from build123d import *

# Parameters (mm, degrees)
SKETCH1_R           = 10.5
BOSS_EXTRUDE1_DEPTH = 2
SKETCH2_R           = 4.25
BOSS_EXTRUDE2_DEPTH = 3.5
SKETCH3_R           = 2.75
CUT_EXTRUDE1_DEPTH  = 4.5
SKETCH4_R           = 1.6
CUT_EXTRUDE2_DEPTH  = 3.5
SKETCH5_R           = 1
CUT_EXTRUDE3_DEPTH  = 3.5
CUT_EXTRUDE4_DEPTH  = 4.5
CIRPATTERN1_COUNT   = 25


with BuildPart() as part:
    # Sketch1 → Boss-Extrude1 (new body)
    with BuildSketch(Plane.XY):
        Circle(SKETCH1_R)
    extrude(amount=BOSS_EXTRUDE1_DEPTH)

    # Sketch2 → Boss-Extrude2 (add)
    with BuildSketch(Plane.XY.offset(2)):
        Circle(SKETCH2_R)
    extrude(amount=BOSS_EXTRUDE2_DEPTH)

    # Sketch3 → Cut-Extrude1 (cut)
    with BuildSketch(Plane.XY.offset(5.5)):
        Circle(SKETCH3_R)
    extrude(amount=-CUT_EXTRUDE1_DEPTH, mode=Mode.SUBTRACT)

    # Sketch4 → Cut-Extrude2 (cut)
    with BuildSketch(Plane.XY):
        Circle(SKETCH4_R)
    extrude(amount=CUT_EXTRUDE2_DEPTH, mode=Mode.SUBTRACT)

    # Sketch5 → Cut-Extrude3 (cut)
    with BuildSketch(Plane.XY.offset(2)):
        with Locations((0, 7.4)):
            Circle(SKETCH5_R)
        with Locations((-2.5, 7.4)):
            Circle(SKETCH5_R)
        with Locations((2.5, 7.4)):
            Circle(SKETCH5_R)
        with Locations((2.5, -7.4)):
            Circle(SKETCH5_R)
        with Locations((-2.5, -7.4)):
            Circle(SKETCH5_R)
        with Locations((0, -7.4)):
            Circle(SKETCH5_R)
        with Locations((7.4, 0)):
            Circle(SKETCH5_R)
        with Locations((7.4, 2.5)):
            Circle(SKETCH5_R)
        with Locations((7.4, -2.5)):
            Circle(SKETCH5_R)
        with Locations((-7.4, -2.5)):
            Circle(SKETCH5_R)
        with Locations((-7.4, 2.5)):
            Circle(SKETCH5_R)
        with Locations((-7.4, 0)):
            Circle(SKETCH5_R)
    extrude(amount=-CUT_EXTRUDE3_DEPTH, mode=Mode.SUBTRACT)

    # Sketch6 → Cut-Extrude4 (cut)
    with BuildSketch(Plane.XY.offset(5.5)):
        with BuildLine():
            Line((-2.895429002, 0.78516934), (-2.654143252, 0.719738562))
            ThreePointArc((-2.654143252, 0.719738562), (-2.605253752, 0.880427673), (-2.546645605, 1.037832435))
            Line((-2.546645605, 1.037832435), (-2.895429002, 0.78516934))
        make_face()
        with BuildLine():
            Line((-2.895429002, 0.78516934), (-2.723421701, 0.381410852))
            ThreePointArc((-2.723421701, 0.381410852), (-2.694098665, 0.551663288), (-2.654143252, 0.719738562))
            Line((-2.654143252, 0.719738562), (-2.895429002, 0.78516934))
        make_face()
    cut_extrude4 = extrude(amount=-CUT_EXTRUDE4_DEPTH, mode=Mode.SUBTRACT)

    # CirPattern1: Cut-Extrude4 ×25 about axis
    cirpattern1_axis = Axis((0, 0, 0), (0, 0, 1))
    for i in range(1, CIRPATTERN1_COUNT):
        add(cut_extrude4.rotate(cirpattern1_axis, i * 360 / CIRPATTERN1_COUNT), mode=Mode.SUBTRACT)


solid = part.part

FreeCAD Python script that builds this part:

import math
import FreeCAD as App
import Part
import Sketcher
Q = App.Units.Quantity

doc = App.newDocument("Part")
body = doc.addObject("PartDesign::Body", "Body")

# Sketch on XY plane
sketch1 = body.newObject("Sketcher::SketchObject", "Sketch")
sketch1.AttachmentSupport = (doc.getObject("XY_Plane"), [""])
sketch1.MapMode = "FlatFace"
sketch1.addGeometry(Part.Circle(App.Vector(0, 0, 0), App.Vector(0, 0, 1), 10), False)
sketch1.addConstraint(Sketcher.Constraint("Coincident", 0, 3, -1, 1))
sketch1.addConstraint(Sketcher.Constraint("Diameter", 0, Q("21 mm")))
pad1 = body.newObject("PartDesign::Pad", "Pad")
pad1.Profile = sketch1
pad1.Length = 2

# Sketch on XY plane
sketch2 = body.newObject("Sketcher::SketchObject", "Sketch001")
sketch2.AttachmentSupport = (doc.getObject("XY_Plane"), [""])
sketch2.MapMode = "FlatFace"
sketch2.AttachmentOffset = App.Placement(App.Vector(0, 0, 2), App.Rotation())
sketch2.addGeometry(Part.Circle(App.Vector(0, 0, 0), App.Vector(0, 0, 1), 4.2), False)
sketch2.addConstraint(Sketcher.Constraint("Coincident", 0, 3, -1, 1))
sketch2.addConstraint(Sketcher.Constraint("Diameter", 0, Q("8.5 mm")))
pad2 = body.newObject("PartDesign::Pad", "Pad001")
pad2.Profile = sketch2
pad2.Length = 3.5

# Sketch on XY plane
sketch3 = body.newObject("Sketcher::SketchObject", "Sketch002")
sketch3.AttachmentSupport = (doc.getObject("XY_Plane"), [""])
sketch3.MapMode = "FlatFace"
sketch3.AttachmentOffset = App.Placement(App.Vector(0, 0, 5.5), App.Rotation())
sketch3.addGeometry(Part.Circle(App.Vector(0, 0, 0), App.Vector(0, 0, 1), 2.8), False)
sketch3.addConstraint(Sketcher.Constraint("Coincident", 0, 3, -1, 1))
sketch3.addConstraint(Sketcher.Constraint("Diameter", 0, Q("5.5 mm")))
pocket1 = body.newObject("PartDesign::Pocket", "Pocket")
pocket1.Profile = sketch3
pocket1.Length = 4.5

# Sketch on XY plane
sketch4 = body.newObject("Sketcher::SketchObject", "Sketch003")
sketch4.AttachmentSupport = (doc.getObject("XY_Plane"), [""])
sketch4.MapMode = "FlatFace"
sketch4.addGeometry(Part.Circle(App.Vector(0, 0, 0), App.Vector(0, 0, 1), 1.6), False)
sketch4.addConstraint(Sketcher.Constraint("Coincident", 0, 3, -1, 1))
sketch4.addConstraint(Sketcher.Constraint("Diameter", 0, Q("3.2 mm")))
pocket2 = body.newObject("PartDesign::Pocket", "Pocket001")
pocket2.Profile = sketch4
pocket2.Length = 3.5
pocket2.Reversed = True

# Sketch on XY plane
sketch5 = body.newObject("Sketcher::SketchObject", "Sketch004")
sketch5.AttachmentSupport = (doc.getObject("XY_Plane"), [""])
sketch5.MapMode = "FlatFace"
sketch5.AttachmentOffset = App.Placement(App.Vector(0, 0, 2), App.Rotation())
sketch5.addGeometry(Part.Circle(App.Vector(0, 7.4, 0), App.Vector(0, 0, 1), 1), False)
sketch5.addGeometry(Part.Circle(App.Vector(-2.5, 7.4, 0), App.Vector(0, 0, 1), 1), False)
sketch5.addGeometry(Part.Circle(App.Vector(2.5, 7.4, 0), App.Vector(0, 0, 1), 1), False)
sketch5.addGeometry(Part.Circle(App.Vector(2.5, -7.4, 0), App.Vector(0, 0, 1), 1), False)
sketch5.addGeometry(Part.Circle(App.Vector(-2.5, -7.4, 0), App.Vector(0, 0, 1), 1), False)
sketch5.addGeometry(Part.Circle(App.Vector(0, -7.4, 0), App.Vector(0, 0, 1), 1), False)
sketch5.addGeometry(Part.Circle(App.Vector(7.4, 0, 0), App.Vector(0, 0, 1), 1), False)
sketch5.addGeometry(Part.Circle(App.Vector(7.4, 2.5, 0), App.Vector(0, 0, 1), 1), False)
sketch5.addGeometry(Part.Circle(App.Vector(7.4, -2.5, 0), App.Vector(0, 0, 1), 1), False)
sketch5.addGeometry(Part.Circle(App.Vector(-7.4, -2.5, 0), App.Vector(0, 0, 1), 1), False)
sketch5.addGeometry(Part.Circle(App.Vector(-7.4, 2.5, 0), App.Vector(0, 0, 1), 1), False)
sketch5.addGeometry(Part.Circle(App.Vector(-7.4, 0, 0), App.Vector(0, 0, 1), 1), False)
sketch5.addConstraint(Sketcher.Constraint("Equal", 0, 1))
sketch5.addConstraint(Sketcher.Constraint("Equal", 1, 2))
sketch5.addConstraint(Sketcher.Constraint("Equal", 2, 3))
sketch5.addConstraint(Sketcher.Constraint("Equal", 3, 4))
sketch5.addConstraint(Sketcher.Constraint("Equal", 4, 5))
sketch5.addConstraint(Sketcher.Constraint("Equal", 5, 6))
sketch5.addConstraint(Sketcher.Constraint("Equal", 6, 7))
sketch5.addConstraint(Sketcher.Constraint("Equal", 7, 8))
sketch5.addConstraint(Sketcher.Constraint("Equal", 8, 9))
sketch5.addConstraint(Sketcher.Constraint("Equal", 9, 10))
sketch5.addConstraint(Sketcher.Constraint("Equal", 10, 11))
sketch5.addConstraint(Sketcher.Constraint("Symmetric", 1, 3, 3, 3, -1, 1))
sketch5.addConstraint(Sketcher.Constraint("Symmetric", 2, 3, 4, 3, -1, 1))
sketch5.addConstraint(Sketcher.Constraint("Symmetric", 0, 3, 5, 3, -1, 1))
sketch5.addConstraint(Sketcher.Constraint("Symmetric", 7, 3, 9, 3, -1, 1))
sketch5.addConstraint(Sketcher.Constraint("Symmetric", 8, 3, 10, 3, -1, 1))
sketch5.addConstraint(Sketcher.Constraint("Symmetric", 6, 3, 11, 3, -1, 1))
sketch5.addConstraint(Sketcher.Constraint("Symmetric", 1, 3, 2, 3, -2))
sketch5.addConstraint(Sketcher.Constraint("Symmetric", 8, 3, 9, 3, -2))
sketch5.addConstraint(Sketcher.Constraint("PointOnObject", 0, 3, -2))
sketch5.addConstraint(Sketcher.Constraint("PointOnObject", 6, 3, -1))
sketch5.addConstraint(Sketcher.Constraint("Horizontal", 0, 3, 1, 3))
sketch5.addConstraint(Sketcher.Constraint("Vertical", 6, 3, 7, 3))
sketch5.addConstraint(Sketcher.Constraint("Diameter", 0, Q("2 mm")))
sketch5.addConstraint(Sketcher.Constraint("DistanceX", 1, 3, 2, 3, Q("5 mm")))
sketch5.addConstraint(Sketcher.Constraint("DistanceY", 8, 3, 7, 3, Q("5 mm")))
sketch5.addConstraint(Sketcher.Constraint("DistanceY", -1, 1, 0, 3, Q("7.4 mm")))
sketch5.addConstraint(Sketcher.Constraint("DistanceX", -1, 1, 6, 3, Q("7.4 mm")))
pocket3 = body.newObject("PartDesign::Pocket", "Pocket002")
pocket3.Profile = sketch5
pocket3.Length = 3.5

# Sketch on XY plane
sketch6 = body.newObject("Sketcher::SketchObject", "Sketch005")
sketch6.AttachmentSupport = (doc.getObject("XY_Plane"), [""])
sketch6.MapMode = "FlatFace"
sketch6.AttachmentOffset = App.Placement(App.Vector(0, 0, 5.5), App.Rotation())
sketch6.addGeometry(Part.ArcOfCircle(Part.Circle(App.Vector(0, 0, 0), App.Vector(0, 0, 1), 2.75), math.radians(157.83), math.radians(164.83)), False)
sketch6.addGeometry(Part.LineSegment(App.Vector(-2.55, 1.04, 0), App.Vector(-2.9, 0.79, 0)), False)
sketch6.addGeometry(Part.LineSegment(App.Vector(-2.9, 0.79, 0), App.Vector(-2.72, 0.38, 0)), False)
sketch6.addGeometry(Part.ArcOfCircle(Part.Circle(App.Vector(0, 0, 0), App.Vector(0, 0, 1), 2.75), math.radians(164.83), math.radians(172.03)), False)
sketch6.addConstraint(Sketcher.Constraint("Coincident", 0, 1, 1, 1))
sketch6.addConstraint(Sketcher.Constraint("Coincident", 1, 2, 2, 1))
sketch6.addConstraint(Sketcher.Constraint("Coincident", 2, 2, 3, 2))
sketch6.addConstraint(Sketcher.Constraint("Tangent", 3, 1, 0, 2))
sketch6.addConstraint(Sketcher.Constraint("Coincident", 0, 3, -1, 1))
sketch6.addConstraint(Sketcher.Constraint("Equal", 0, 3))
sketch6.addConstraint(Sketcher.Constraint("Radius", 0, Q("2.75 mm")))
sketch6.addConstraint(Sketcher.Constraint("Distance", 2, Q("0.438871 mm")))
sketch6.addConstraint(Sketcher.Constraint("DistanceX", 1, 2, -1, 1, Q("2.895429 mm")))
sketch6.addConstraint(Sketcher.Constraint("DistanceY", -1, 1, 1, 2, Q("0.785169 mm")))
sketch6.addConstraint(Sketcher.Constraint("DistanceY", -1, 1, 3, 1, Q("0.719739 mm")))
sketch6.addConstraint(Sketcher.Constraint("DistanceY", 2, 2, 0, 1, Q("0.656422 mm")))
pocket4 = body.newObject("PartDesign::Pocket", "Pocket003")
pocket4.Profile = sketch6
pocket4.Length = 4.5
doc.recompute()

polarpattern = body.newObject("PartDesign::PolarPattern", "PolarPattern")
polarpattern.Originals = [pocket4]
polarpattern.Axis = (doc.getObject("Z_Axis"), [""])
polarpattern.Angle = 360
polarpattern.Occurrences = 25
body.Tip = polarpattern

doc.recompute()
